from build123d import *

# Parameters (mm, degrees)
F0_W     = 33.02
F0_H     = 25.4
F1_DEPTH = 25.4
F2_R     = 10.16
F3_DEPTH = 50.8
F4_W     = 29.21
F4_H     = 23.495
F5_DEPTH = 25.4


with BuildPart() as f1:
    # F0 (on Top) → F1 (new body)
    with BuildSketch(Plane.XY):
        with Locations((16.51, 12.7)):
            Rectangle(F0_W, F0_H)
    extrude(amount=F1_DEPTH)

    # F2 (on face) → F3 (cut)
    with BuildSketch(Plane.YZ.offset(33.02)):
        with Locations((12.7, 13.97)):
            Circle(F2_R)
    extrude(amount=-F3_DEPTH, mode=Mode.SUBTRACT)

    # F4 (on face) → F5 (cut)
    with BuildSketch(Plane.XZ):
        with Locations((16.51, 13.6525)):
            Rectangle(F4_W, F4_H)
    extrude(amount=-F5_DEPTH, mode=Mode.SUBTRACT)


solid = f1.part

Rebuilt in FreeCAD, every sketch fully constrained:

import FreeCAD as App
import Part
import Sketcher
from FreeCAD import Vector
Q = App.Units.Quantity

doc = App.newDocument("Part")
body = doc.addObject("PartDesign::Body", "Body")

sketch1 = body.newObject("Sketcher::SketchObject", "Sketch")
sketch1.AttachmentSupport = (doc.getObject("XY_Plane"), [""])
sketch1.MapMode = "FlatFace"
sketch1.addGeometry([
    Part.LineSegment(Vector(0, 25.4, 0), Vector(0, 0, 0)),
    Part.LineSegment(Vector(0, 0, 0), Vector(33.02, 0, 0)),
    Part.LineSegment(Vector(33.02, 0, 0), Vector(33.02, 25.4, 0)),
    Part.LineSegment(Vector(33.02, 25.4, 0), Vector(0, 25.4, 0)),
], False)
sketch1.addConstraint([
    Sketcher.Constraint("Coincident", 0, 2, 1, 1),
    Sketcher.Constraint("Coincident", 1, 2, 2, 1),
    Sketcher.Constraint("Coincident", 2, 2, 3, 1),
    Sketcher.Constraint("Coincident", 3, 2, 0, 1),
    Sketcher.Constraint("Vertical", 0),
    Sketcher.Constraint("Horizontal", 1),
    Sketcher.Constraint("Vertical", 2),
    Sketcher.Constraint("Horizontal", 3),
    Sketcher.Constraint("Coincident", 0, 2, -1, 1),
    Sketcher.Constraint("DistanceY", 0, 2, 0, 1, Q("1 in")),
    Sketcher.Constraint("DistanceX", 1, 1, 1, 2, Q("1.3 in")),
])
pad1 = body.newObject("PartDesign::Pad", "Pad")
pad1.Profile = sketch1
pad1.Length = Q("1 in")

sketch2 = body.newObject("Sketcher::SketchObject", "Sketch001")
sketch2.AttachmentSupport = (doc.getObject("YZ_Plane"), [""])
sketch2.MapMode = "FlatFace"
sketch2.AttachmentOffset = App.Placement(Vector(0, 0, 1.3 * 25.4), App.Rotation())
sketch2.addGeometry(Part.Circle(Vector(12.7, 13.97, 0), Vector(0, 0, 1), 10.16), False)
sketch2.addConstraint([
    Sketcher.Constraint("Diameter", 0, Q("0.8 in")),
    Sketcher.Constraint("DistanceX", -1, 1, 0, 3, Q("0.5 in")),
    Sketcher.Constraint("DistanceY", -1, 1, 0, 3, Q("0.55 in")),
])
pocket1 = body.newObject("PartDesign::Pocket", "Pocket")
pocket1.Profile = sketch2
pocket1.Length = Q("2 in")

sketch3 = body.newObject("Sketcher::SketchObject", "Sketch002")
sketch3.AttachmentSupport = (doc.getObject("XZ_Plane"), [""])
sketch3.MapMode = "FlatFace"
sketch3.addGeometry([
    Part.LineSegment(Vector(1.905, 25.4, 0), Vector(1.905, 1.905, 0)),
    Part.LineSegment(Vector(1.905, 1.905, 0), Vector(31.115, 1.905, 0)),
    Part.LineSegment(Vector(31.115, 1.905, 0), Vector(31.115, 25.4, 0)),
    Part.LineSegment(Vector(31.115, 25.4, 0), Vector(1.905, 25.4, 0)),
], False)
sketch3.addConstraint([
    Sketcher.Constraint("Coincident", 0, 2, 1, 1),
    Sketcher.Constraint("Coincident", 1, 2, 2, 1),
    Sketcher.Constraint("Coincident", 2, 2, 3, 1),
    Sketcher.Constraint("Coincident", 3, 2, 0, 1),
    Sketcher.Constraint("Vertical", 0),
    Sketcher.Constraint("Horizontal", 1),
    Sketcher.Constraint("Vertical", 2),
    Sketcher.Constraint("Horizontal", 3),
    Sketcher.Constraint("DistanceY", -1, 1, 2, 2, Q("1 in")),
    Sketcher.Constraint("DistanceX", 1, 1, 1, 2, Q("1.15 in")),
    Sketcher.Constraint("DistanceY", 0, 2, 0, 1, Q("0.925 in")),
    Sketcher.Constraint("DistanceX", -1, 1, 0, 2, Q("0.075 in")),
])
pocket2 = body.newObject("PartDesign::Pocket", "Pocket001")
pocket2.Profile = sketch3
pocket2.Length = Q("1 in")

doc.recompute()
